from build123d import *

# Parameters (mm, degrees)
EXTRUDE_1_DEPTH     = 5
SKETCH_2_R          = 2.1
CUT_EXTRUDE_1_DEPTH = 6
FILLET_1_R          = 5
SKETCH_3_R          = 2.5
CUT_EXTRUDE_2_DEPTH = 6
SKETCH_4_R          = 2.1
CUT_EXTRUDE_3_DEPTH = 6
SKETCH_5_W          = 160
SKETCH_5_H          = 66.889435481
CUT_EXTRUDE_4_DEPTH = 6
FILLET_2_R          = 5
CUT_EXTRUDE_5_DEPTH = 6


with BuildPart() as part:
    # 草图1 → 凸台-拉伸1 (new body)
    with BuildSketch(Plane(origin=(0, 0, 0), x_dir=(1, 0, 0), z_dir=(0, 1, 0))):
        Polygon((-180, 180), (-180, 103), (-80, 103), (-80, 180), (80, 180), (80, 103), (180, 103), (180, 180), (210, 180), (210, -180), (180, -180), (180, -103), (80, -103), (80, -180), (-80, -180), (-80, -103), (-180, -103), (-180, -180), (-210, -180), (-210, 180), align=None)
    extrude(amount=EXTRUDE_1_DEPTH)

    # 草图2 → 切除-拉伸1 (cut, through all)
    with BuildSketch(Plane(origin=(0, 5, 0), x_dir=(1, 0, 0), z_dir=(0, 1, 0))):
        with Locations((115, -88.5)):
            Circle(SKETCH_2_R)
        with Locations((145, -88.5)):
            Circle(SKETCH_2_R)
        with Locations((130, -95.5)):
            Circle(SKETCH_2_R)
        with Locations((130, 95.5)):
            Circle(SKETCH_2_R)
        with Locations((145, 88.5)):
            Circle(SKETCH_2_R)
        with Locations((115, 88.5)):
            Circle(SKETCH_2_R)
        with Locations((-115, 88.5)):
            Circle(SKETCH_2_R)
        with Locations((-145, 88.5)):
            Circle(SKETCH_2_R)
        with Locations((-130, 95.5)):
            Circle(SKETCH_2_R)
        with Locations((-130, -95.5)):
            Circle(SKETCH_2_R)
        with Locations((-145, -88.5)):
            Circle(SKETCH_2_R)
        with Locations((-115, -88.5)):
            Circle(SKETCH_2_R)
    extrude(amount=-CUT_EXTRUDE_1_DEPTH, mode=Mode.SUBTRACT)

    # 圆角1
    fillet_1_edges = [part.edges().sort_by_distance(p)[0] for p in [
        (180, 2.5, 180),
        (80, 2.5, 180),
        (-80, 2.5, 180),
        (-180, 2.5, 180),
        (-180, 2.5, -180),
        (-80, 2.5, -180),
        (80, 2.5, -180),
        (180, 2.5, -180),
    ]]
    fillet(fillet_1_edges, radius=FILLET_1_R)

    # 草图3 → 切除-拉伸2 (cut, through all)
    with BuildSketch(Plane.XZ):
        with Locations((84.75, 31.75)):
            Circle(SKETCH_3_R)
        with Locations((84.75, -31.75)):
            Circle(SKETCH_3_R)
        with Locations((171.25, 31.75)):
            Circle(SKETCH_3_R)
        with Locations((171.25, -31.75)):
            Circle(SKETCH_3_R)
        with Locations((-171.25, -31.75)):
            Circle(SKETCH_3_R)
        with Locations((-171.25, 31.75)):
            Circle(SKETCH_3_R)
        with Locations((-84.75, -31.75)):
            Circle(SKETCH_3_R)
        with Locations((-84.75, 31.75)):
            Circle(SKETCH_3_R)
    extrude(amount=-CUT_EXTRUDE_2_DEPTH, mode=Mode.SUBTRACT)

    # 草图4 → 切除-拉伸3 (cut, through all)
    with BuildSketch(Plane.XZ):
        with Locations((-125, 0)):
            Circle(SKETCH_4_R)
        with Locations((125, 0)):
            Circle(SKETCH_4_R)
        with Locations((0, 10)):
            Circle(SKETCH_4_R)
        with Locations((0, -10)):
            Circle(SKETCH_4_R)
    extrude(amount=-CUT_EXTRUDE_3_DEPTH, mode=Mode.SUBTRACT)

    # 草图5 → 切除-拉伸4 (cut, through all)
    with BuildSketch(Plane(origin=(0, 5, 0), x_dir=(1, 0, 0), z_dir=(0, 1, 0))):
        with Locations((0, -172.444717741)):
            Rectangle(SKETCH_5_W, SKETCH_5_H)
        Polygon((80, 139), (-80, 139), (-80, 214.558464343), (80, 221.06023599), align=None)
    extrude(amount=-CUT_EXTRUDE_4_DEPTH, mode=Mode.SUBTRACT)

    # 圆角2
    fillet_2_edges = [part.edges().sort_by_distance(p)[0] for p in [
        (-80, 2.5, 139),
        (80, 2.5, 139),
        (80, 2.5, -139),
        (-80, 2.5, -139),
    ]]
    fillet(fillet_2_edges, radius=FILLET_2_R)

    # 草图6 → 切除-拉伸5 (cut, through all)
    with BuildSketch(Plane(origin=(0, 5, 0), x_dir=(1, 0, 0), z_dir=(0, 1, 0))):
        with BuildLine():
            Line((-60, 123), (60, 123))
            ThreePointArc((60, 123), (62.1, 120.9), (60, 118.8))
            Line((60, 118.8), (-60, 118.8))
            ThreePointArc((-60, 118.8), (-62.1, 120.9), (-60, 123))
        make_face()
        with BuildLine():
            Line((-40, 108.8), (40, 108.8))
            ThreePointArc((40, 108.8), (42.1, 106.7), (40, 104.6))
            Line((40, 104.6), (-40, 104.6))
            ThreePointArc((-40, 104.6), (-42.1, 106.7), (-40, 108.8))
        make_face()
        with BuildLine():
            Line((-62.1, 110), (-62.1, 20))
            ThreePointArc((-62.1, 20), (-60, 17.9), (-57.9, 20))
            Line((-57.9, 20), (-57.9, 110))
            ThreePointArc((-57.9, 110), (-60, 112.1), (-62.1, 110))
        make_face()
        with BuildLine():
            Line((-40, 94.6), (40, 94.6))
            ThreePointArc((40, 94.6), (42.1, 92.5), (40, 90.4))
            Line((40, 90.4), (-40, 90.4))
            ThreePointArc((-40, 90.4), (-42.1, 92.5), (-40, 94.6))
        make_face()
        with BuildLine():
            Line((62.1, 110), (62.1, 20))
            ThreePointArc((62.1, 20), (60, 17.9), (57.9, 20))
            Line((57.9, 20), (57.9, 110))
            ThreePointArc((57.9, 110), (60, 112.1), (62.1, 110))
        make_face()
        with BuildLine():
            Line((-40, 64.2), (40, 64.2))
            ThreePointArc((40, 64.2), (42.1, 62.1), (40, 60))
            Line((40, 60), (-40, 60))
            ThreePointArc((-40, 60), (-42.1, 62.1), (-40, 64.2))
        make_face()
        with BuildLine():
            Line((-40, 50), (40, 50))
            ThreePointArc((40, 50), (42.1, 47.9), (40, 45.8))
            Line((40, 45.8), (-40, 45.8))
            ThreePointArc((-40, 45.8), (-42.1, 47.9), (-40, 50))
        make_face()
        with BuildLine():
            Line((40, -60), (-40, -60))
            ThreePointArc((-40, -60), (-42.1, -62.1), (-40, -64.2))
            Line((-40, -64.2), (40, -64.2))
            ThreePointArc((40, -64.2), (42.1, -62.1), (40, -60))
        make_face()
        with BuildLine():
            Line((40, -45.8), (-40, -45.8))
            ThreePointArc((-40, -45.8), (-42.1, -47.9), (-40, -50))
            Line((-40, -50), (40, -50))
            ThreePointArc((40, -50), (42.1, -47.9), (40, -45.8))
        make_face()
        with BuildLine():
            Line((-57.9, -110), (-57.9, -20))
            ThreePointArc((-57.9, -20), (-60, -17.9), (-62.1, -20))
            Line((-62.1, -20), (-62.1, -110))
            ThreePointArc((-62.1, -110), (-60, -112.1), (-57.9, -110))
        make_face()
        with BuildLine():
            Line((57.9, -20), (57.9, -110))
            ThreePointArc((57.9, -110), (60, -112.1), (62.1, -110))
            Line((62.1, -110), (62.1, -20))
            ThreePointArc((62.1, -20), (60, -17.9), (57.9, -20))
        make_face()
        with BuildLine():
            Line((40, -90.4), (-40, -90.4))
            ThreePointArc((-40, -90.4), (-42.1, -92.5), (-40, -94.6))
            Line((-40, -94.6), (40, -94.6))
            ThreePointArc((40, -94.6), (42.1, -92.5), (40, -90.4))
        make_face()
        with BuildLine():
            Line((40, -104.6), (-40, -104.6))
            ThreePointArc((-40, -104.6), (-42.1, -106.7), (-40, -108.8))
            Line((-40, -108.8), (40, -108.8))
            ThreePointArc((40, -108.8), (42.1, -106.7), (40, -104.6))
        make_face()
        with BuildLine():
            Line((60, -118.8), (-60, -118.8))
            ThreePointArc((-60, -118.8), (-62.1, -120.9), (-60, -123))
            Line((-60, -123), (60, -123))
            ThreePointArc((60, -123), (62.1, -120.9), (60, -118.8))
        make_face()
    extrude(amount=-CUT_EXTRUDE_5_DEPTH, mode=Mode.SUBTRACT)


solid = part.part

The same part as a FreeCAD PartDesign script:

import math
import FreeCAD as App
import Part
import Sketcher
from FreeCAD import Vector


def edges_at(feature, points):
    """Names of the edges that pass closest to the given points."""
    edges = feature.Shape.Edges
    near = lambda p: min(range(len(edges)), key=lambda i: edges[i].distToShape(Part.Vertex(*p))[0])
    return sorted({f"Edge{near(p) + 1}" for p in points})


def add_polygon(sketch, points):
    """Adds a closed chain of lines whose ends are joined by coincident constraints."""
    first, n = sketch.GeometryCount, len(points)
    for a, b in zip(points, points[1:] + points[:1]):
        sketch.addGeometry(Part.LineSegment(App.Vector(*a, 0), App.Vector(*b, 0)), False)
    for i in range(n):
        sketch.addConstraint(Sketcher.Constraint("Coincident", first + i, 2, first + (i + 1) % n, 1))

doc = App.newDocument("Part")
body = doc.addObject("PartDesign::Body", "Body")

# Sketch on XZ plane
sketch1 = body.newObject("Sketcher::SketchObject", "Sketch")
sketch1.AttachmentSupport = (doc.getObject("XZ_Plane"), [""])
sketch1.MapMode = "FlatFace"
add_polygon(sketch1, [(-180, -103), (-180, -180), (-210, -180), (-210, 180), (-180, 180), (-180, 103), (-80, 103), (-80, 180), (80, 180), (80, 103), (180, 103), (180, 180), (210, 180), (210, -180), (180, -180), (180, -103), (80, -103), (80, -180), (-80, -180), (-80, -103)])  # lines 0-19
sketch1.addConstraint(Sketcher.Constraint("Vertical", 0))
sketch1.addConstraint(Sketcher.Constraint("Horizontal", 1))
sketch1.addConstraint(Sketcher.Constraint("Vertical", 2))
sketch1.addConstraint(Sketcher.Constraint("Horizontal", 3))
sketch1.addConstraint(Sketcher.Constraint("Vertical", 4))
sketch1.addConstraint(Sketcher.Constraint("Horizontal", 5))
sketch1.addConstraint(Sketcher.Constraint("Vertical", 6))
sketch1.addConstraint(Sketcher.Constraint("Horizontal", 7))
sketch1.addConstraint(Sketcher.Constraint("Vertical", 8))
sketch1.addConstraint(Sketcher.Constraint("Horizontal", 9))
sketch1.addConstraint(Sketcher.Constraint("Vertical", 10))
sketch1.addConstraint(Sketcher.Constraint("Horizontal", 11))
sketch1.addConstraint(Sketcher.Constraint("Vertical", 12))
sketch1.addConstraint(Sketcher.Constraint("Horizontal", 13))
sketch1.addConstraint(Sketcher.Constraint("Vertical", 14))
sketch1.addConstraint(Sketcher.Constraint("Horizontal", 15))
sketch1.addConstraint(Sketcher.Constraint("Vertical", 16))
sketch1.addConstraint(Sketcher.Constraint("Horizontal", 17))
sketch1.addConstraint(Sketcher.Constraint("Vertical", 18))
sketch1.addConstraint(Sketcher.Constraint("Horizontal", 19))
sketch1.addConstraint(Sketcher.Constraint("Symmetric", 0, 2, 10, 2, -1, 1))
sketch1.addConstraint(Sketcher.Constraint("Symmetric", 2, 2, 12, 2, -1, 1))
sketch1.addConstraint(Sketcher.Constraint("Symmetric", 4, 2, 14, 2, -1, 1))
sketch1.addConstraint(Sketcher.Constraint("Symmetric", 6, 2, 16, 2, -1, 1))
sketch1.addConstraint(Sketcher.Constraint("Symmetric", 8, 2, 18, 2, -1, 1))
sketch1.addConstraint(Sketcher.Constraint("Symmetric", 5, 2, 8, 2, -2))
sketch1.addConstraint(Sketcher.Constraint("Symmetric", 3, 2, 10, 2, -2))
sketch1.addConstraint(Sketcher.Constraint("Horizontal", 3, 2, 6, 2))
sketch1.addConstraint(Sketcher.Constraint("DistanceX", 1, 2, 1, 1, 30.0))
sketch1.addConstraint(Sketcher.Constraint("DistanceX", 5, 1, 5, 2, 100.0))
sketch1.addConstraint(Sketcher.Constraint("DistanceX", 7, 1, 7, 2, 160.0))
sketch1.addConstraint(Sketcher.Constraint("DistanceY", 0, 2, 0, 1, 77.0))
sketch1.addConstraint(Sketcher.Constraint("DistanceY", 2, 1, 2, 2, 360.0))
pad1 = body.newObject("PartDesign::Pad", "Pad")
pad1.Profile = sketch1
pad1.Length = 5
pad1.Reversed = True

# Sketch on XZ plane
sketch2 = body.newObject("Sketcher::SketchObject", "Sketch001")
sketch2.AttachmentSupport = (doc.getObject("XZ_Plane"), [""])
sketch2.MapMode = "FlatFace"
sketch2.AttachmentOffset = App.Placement(Vector(0, 0, -5), App.Rotation())
sketch2.addGeometry(Part.Circle(Vector(115, 88.5, 0), Vector(0, 0, 1), 2.1), False)
sketch2.addGeometry(Part.Circle(Vector(145, 88.5, 0), Vector(0, 0, 1), 2.1), False)
sketch2.addGeometry(Part.Circle(Vector(130, 95.5, 0), Vector(0, 0, 1), 2.1), False)
sketch2.addGeometry(Part.Circle(Vector(130, -95.5, 0), Vector(0, 0, 1), 2.1), False)
sketch2.addGeometry(Part.Circle(Vector(145, -88.5, 0), Vector(0, 0, 1), 2.1), False)
sketch2.addGeometry(Part.Circle(Vector(115, -88.5, 0), Vector(0, 0, 1), 2.1), False)
sketch2.addGeometry(Part.Circle(Vector(-115, -88.5, 0), Vector(0, 0, 1), 2.1), False)
sketch2.addGeometry(Part.Circle(Vector(-145, -88.5, 0), Vector(0, 0, 1), 2.1), False)
sketch2.addGeometry(Part.Circle(Vector(-130, -95.5, 0), Vector(0, 0, 1), 2.1), False)
sketch2.addGeometry(Part.Circle(Vector(-130, 95.5, 0), Vector(0, 0, 1), 2.1), False)
sketch2.addGeometry(Part.Circle(Vector(-145, 88.5, 0), Vector(0, 0, 1), 2.1), False)
sketch2.addGeometry(Part.Circle(Vector(-115, 88.5, 0), Vector(0, 0, 1), 2.1), False)
sketch2.addConstraint(Sketcher.Constraint("Equal", 0, 1))
sketch2.addConstraint(Sketcher.Constraint("Equal", 1, 2))
sketch2.addConstraint(Sketcher.Constraint("Equal", 2, 3))
sketch2.addConstraint(Sketcher.Constraint("Equal", 3, 4))
sketch2.addConstraint(Sketcher.Constraint("Equal", 4, 5))
sketch2.addConstraint(Sketcher.Constraint("Equal", 5, 6))
sketch2.addConstraint(Sketcher.Constraint("Equal", 6, 7))
sketch2.addConstraint(Sketcher.Constraint("Equal", 7, 8))
sketch2.addConstraint(Sketcher.Constraint("Equal", 8, 9))
sketch2.addConstraint(Sketcher.Constraint("Equal", 9, 10))
sketch2.addConstraint(Sketcher.Constraint("Equal", 10, 11))
sketch2.addConstraint(Sketcher.Constraint("Symmetric", 0, 3, 6, 3, -1, 1))
sketch2.addConstraint(Sketcher.Constraint("Symmetric", 1, 3, 7, 3, -1, 1))
sketch2.addConstraint(Sketcher.Constraint("Symmetric", 2, 3, 8, 3, -1, 1))
sketch2.addConstraint(Sketcher.Constraint("Symmetric", 3, 3, 9, 3, -1, 1))
sketch2.addConstraint(Sketcher.Constraint("Symmetric", 4, 3, 10, 3, -1, 1))
sketch2.addConstraint(Sketcher.Constraint("Symmetric", 5, 3, 11, 3, -1, 1))
sketch2.addConstraint(Sketcher.Constraint("Symmetric", 5, 3, 6, 3, -2))
sketch2.addConstraint(Sketcher.Constraint("Symmetric", 4, 3, 7, 3, -2))
sketch2.addConstraint(Sketcher.Constraint("Symmetric", 3, 3, 8, 3, -2))
sketch2.addConstraint(Sketcher.Constraint("Horizontal", 0, 3, 1, 3))
sketch2.addConstraint(Sketcher.Constraint("Diameter", 0, 4.2))
sketch2.addConstraint(Sketcher.Constraint("DistanceX", -1, 1, 0, 3, 115.0))
sketch2.addConstraint(Sketcher.Constraint("DistanceX", -1, 1, 1, 3, 145.0))
sketch2.addConstraint(Sketcher.Constraint("DistanceX", -1, 1, 2, 3, 130.0))
sketch2.addConstraint(Sketcher.Constraint("DistanceY", 0, 3, 2, 3, 7.0))
sketch2.addConstraint(Sketcher.Constraint("DistanceY", 3, 3, 0, 3, 184.0))
pocket1 = body.newObject("PartDesign::Pocket", "Pocket")
pocket1.Profile = sketch2
pocket1.Type = "ThroughAll"
pocket1.Reversed = True
doc.recompute()

fillet = body.newObject("PartDesign::Fillet", "Fillet")
fillet.Base = (pocket1, edges_at(pocket1, [
    (180, 2.5, 180),
    (80, 2.5, 180),
    (-80, 2.5, 180),
    (-180, 2.5, 180),
    (-180, 2.5, -180),
    (-80, 2.5, -180),
    (80, 2.5, -180),
    (180, 2.5, -180),
]))
fillet.Radius = 5

# Sketch on XZ plane
sketch3 = body.newObject("Sketcher::SketchObject", "Sketch002")
sketch3.AttachmentSupport = (doc.getObject("XZ_Plane"), [""])
sketch3.MapMode = "FlatFace"
sketch3.addGeometry(Part.Circle(Vector(84.8, 31.8, 0), Vector(0, 0, 1), 2.5), False)
sketch3.addGeometry(Part.Circle(Vector(84.8, -31.8, 0), Vector(0, 0, 1), 2.5), False)
sketch3.addGeometry(Part.Circle(Vector(171.2, 31.8, 0), Vector(0, 0, 1), 2.5), False)
sketch3.addGeometry(Part.Circle(Vector(171.2, -31.8, 0), Vector(0, 0, 1), 2.5), False)
sketch3.addGeometry(Part.Circle(Vector(-171.2, -31.8, 0), Vector(0, 0, 1), 2.5), False)
sketch3.addGeometry(Part.Circle(Vector(-171.2, 31.8, 0), Vector(0, 0, 1), 2.5), False)
sketch3.addGeometry(Part.Circle(Vector(-84.8, -31.8, 0), Vector(0, 0, 1), 2.5), False)
sketch3.addGeometry(Part.Circle(Vector(-84.8, 31.8, 0), Vector(0, 0, 1), 2.5), False)
sketch3.addConstraint(Sketcher.Constraint("Equal", 0, 1))
sketch3.addConstraint(Sketcher.Constraint("Equal", 1, 2))
sketch3.addConstraint(Sketcher.Constraint("Equal", 2, 3))
sketch3.addConstraint(Sketcher.Constraint("Equal", 3, 4))
sketch3.addConstraint(Sketcher.Constraint("Equal", 4, 5))
sketch3.addConstraint(Sketcher.Constraint("Equal", 5, 6))
sketch3.addConstraint(Sketcher.Constraint("Equal", 6, 7))
sketch3.addConstraint(Sketcher.Constraint("Symmetric", 2, 3, 4, 3, -1, 1))
sketch3.addConstraint(Sketcher.Constraint("Symmetric", 3, 3, 5, 3, -1, 1))
sketch3.addConstraint(Sketcher.Constraint("Symmetric", 0, 3, 6, 3, -1, 1))
sketch3.addConstraint(Sketcher.Constraint("Symmetric", 1, 3, 7, 3, -1, 1))
sketch3.addConstraint(Sketcher.Constraint("Symmetric", 3, 3, 4, 3, -2))
sketch3.addConstraint(Sketcher.Constraint("Symmetric", 1, 3, 6, 3, -2))
sketch3.addConstraint(Sketcher.Constraint("Horizontal", 0, 3, 2, 3))
sketch3.addConstraint(Sketcher.Constraint("Diameter", 0, 5.0))
sketch3.addConstraint(Sketcher.Constraint("DistanceX", 4, 3, 1, 3, 256.0))
sketch3.addConstraint(Sketcher.Constraint("DistanceY", 1, 3, 0, 3, 63.5))
sketch3.addConstraint(Sketcher.Constraint("DistanceX", 0, 3, 2, 3, 86.5))
pocket2 = body.newObject("PartDesign::Pocket", "Pocket001")
pocket2.Profile = sketch3
pocket2.Type = "ThroughAll"

# Sketch on XZ plane
sketch4 = body.newObject("Sketcher::SketchObject", "Sketch003")
sketch4.AttachmentSupport = (doc.getObject("XZ_Plane"), [""])
sketch4.MapMode = "FlatFace"
sketch4.addGeometry(Part.Circle(Vector(-125, 0, 0), Vector(0, 0, 1), 2.1), False)
sketch4.addGeometry(Part.Circle(Vector(125, 0, 0), Vector(0, 0, 1), 2.1), False)
sketch4.addGeometry(Part.Circle(Vector(0, 10, 0), Vector(0, 0, 1), 2.1), False)
sketch4.addGeometry(Part.Circle(Vector(0, -10, 0), Vector(0, 0, 1), 2.1), False)
sketch4.addConstraint(Sketcher.Constraint("Equal", 0, 1))
sketch4.addConstraint(Sketcher.Constraint("Equal", 1, 2))
sketch4.addConstraint(Sketcher.Constraint("Equal", 2, 3))
sketch4.addConstraint(Sketcher.Constraint("Symmetric", 0, 3, 1, 3, -1, 1))
sketch4.addConstraint(Sketcher.Constraint("Symmetric", 2, 3, 3, 3, -1, 1))
sketch4.addConstraint(Sketcher.Constraint("PointOnObject", 0, 3, -1))
sketch4.addConstraint(Sketcher.Constraint("PointOnObject", 2, 3, -2))
sketch4.addConstraint(Sketcher.Constraint("Diameter", 0, 4.2))
sketch4.addConstraint(Sketcher.Constraint("DistanceX", 0, 3, -1, 1, 125.0))
sketch4.addConstraint(Sketcher.Constraint("DistanceY", -1, 1, 2, 3, 10.0))
pocket3 = body.newObject("PartDesign::Pocket", "Pocket002")
pocket3.Profile = sketch4
pocket3.Type = "ThroughAll"

# Sketch on XZ plane
sketch5 = body.newObject("Sketcher::SketchObject", "Sketch004")
sketch5.AttachmentSupport = (doc.getObject("XZ_Plane"), [""])
sketch5.MapMode = "FlatFace"
sketch5.AttachmentOffset = App.Placement(Vector(0, 0, -5), App.Rotation())
add_polygon(sketch5, [(-80, 139), (-80, 206), (80, 206), (80, 139)])  # lines 0-3
add_polygon(sketch5, [(-80, -139), (80, -139), (80, -221), (-80, -215)])  # lines 4-7
sketch5.addConstraint(Sketcher.Constraint("Vertical", 0))
sketch5.addConstraint(Sketcher.Constraint("Horizontal", 1))
sketch5.addConstraint(Sketcher.Constraint("Vertical", 2))
sketch5.addConstraint(Sketcher.Constraint("Horizontal", 3))
sketch5.addConstraint(Sketcher.Constraint("Horizontal", 4))
sketch5.addConstraint(Sketcher.Constraint("Vertical", 5))
sketch5.addConstraint(Sketcher.Constraint("Vertical", 7))
sketch5.addConstraint(Sketcher.Constraint("Symmetric", 3, 2, 4, 2, -1, 1))
sketch5.addConstraint(Sketcher.Constraint("Vertical", 2, 2, 4, 2))
sketch5.addConstraint(Sketcher.Constraint("Vertical", 3, 2, 6, 2))
sketch5.addConstraint(Sketcher.Constraint("DistanceX", 1, 1, 1, 2, 160.0))
sketch5.addConstraint(Sketcher.Constraint("DistanceY", -1, 1, 2, 2, 139.0))
sketch5.addConstraint(Sketcher.Constraint("DistanceY", 6, 2, 0, 2, 420.4479))
sketch5.addConstraint(Sketcher.Constraint("Distance", 6, 160.132049))
sketch5.addConstraint(Sketcher.Constraint("DistanceY", 0, 1, 0, 2, 66.889435))
pocket4 = body.newObject("PartDesign::Pocket", "Pocket003")
pocket4.Profile = sketch5
pocket4.Type = "ThroughAll"
pocket4.Reversed = True
doc.recompute()

fillet2 = body.newObject("PartDesign::Fillet", "Fillet001")
fillet2.Base = (pocket4, edges_at(pocket4, [
    (-80, 2.5, 139),
    (80, 2.5, 139),
    (80, 2.5, -139),
    (-80, 2.5, -139),
]))
fillet2.Radius = 5

# Sketch on XZ plane
sketch6 = body.newObject("Sketcher::SketchObject", "Sketch005")
sketch6.AttachmentSupport = (doc.getObject("XZ_Plane"), [""])
sketch6.MapMode = "FlatFace"
sketch6.AttachmentOffset = App.Placement(Vector(0, 0, -5), App.Rotation())
sketch6.addGeometry(Part.LineSegment(Vector(60, -123, 0), Vector(-60, -123, 0)), False)
sketch6.addGeometry(Part.ArcOfCircle(Part.Circle(Vector(-60, -120.9, 0), Vector(0, 0, 1), 2.1), math.radians(90), math.radians(270)), False)
sketch6.addGeometry(Part.LineSegment(Vector(-60, -118.8, 0), Vector(60, -118.8, 0)), False)
sketch6.addGeometry(Part.ArcOfCircle(Part.Circle(Vector(60, -120.9, 0), Vector(0, 0, 1), 2.1), math.radians(-90), math.radians(90)), False)
sketch6.addGeometry(Part.LineSegment(Vector(40, -108.8, 0), Vector(-40, -108.8, 0)), False)
sketch6.addGeometry(Part.ArcOfCircle(Part.Circle(Vector(-40, -106.7, 0), Vector(0, 0, 1), 2.1), math.radians(90), math.radians(270)), False)
sketch6.addGeometry(Part.LineSegment(Vector(-40, -104.6, 0), Vector(40, -104.6, 0)), False)
sketch6.addGeometry(Part.ArcOfCircle(Part.Circle(Vector(40, -106.7, 0), Vector(0, 0, 1), 2.1), math.radians(-90), math.radians(90)), False)
sketch6.addGeometry(Part.LineSegment(Vector(-62.1, -110, 0), Vector(-62.1, -20, 0)), False)
sketch6.addGeometry(Part.ArcOfCircle(Part.Circle(Vector(-60, -20, 0), Vector(0, 0, 1), 2.1), math.radians(0), math.radians(180)), False)
sketch6.addGeometry(Part.LineSegment(Vector(-57.9, -20, 0), Vector(-57.9, -110, 0)), False)
sketch6.addGeometry(Part.ArcOfCircle(Part.Circle(Vector(-60, -110, 0), Vector(0, 0, 1), 2.1), math.radians(180), math.radians(360)), False)
sketch6.addGeometry(Part.LineSegment(Vector(40, -94.6, 0), Vector(-40, -94.6, 0)), False)
sketch6.addGeometry(Part.ArcOfCircle(Part.Circle(Vector(-40, -92.5, 0), Vector(0, 0, 1), 2.1), math.radians(90), math.radians(270)), False)
sketch6.addGeometry(Part.LineSegment(Vector(-40, -90.4, 0), Vector(40, -90.4, 0)), False)
sketch6.addGeometry(Part.ArcOfCircle(Part.Circle(Vector(40, -92.5, 0), Vector(0, 0, 1), 2.1), math.radians(-90), math.radians(90)), False)
sketch6.addGeometry(Part.LineSegment(Vector(62.1, -20, 0), Vector(62.1, -110, 0)), False)
sketch6.addGeometry(Part.ArcOfCircle(Part.Circle(Vector(60, -110, 0), Vector(0, 0, 1), 2.1), math.radians(180), math.radians(360)), False)
sketch6.addGeometry(Part.LineSegment(Vector(57.9, -110, 0), Vector(57.9, -20, 0)), False)
sketch6.addGeometry(Part.ArcOfCircle(Part.Circle(Vector(60, -20, 0), Vector(0, 0, 1), 2.1), math.radians(0), math.radians(180)), False)
sketch6.addGeometry(Part.LineSegment(Vector(40, -64.2, 0), Vector(-40, -64.2, 0)), False)
sketch6.addGeometry(Part.ArcOfCircle(Part.Circle(Vector(-40, -62.1, 0), Vector(0, 0, 1), 2.1), math.radians(90), math.radians(270)), False)
sketch6.addGeometry(Part.LineSegment(Vector(-40, -60, 0), Vector(40, -60, 0)), False)
sketch6.addGeometry(Part.ArcOfCircle(Part.Circle(Vector(40, -62.1, 0), Vector(0, 0, 1), 2.1), math.radians(-90), math.radians(90)), False)
sketch6.addGeometry(Part.LineSegment(Vector(40, -50, 0), Vector(-40, -50, 0)), False)
sketch6.addGeometry(Part.ArcOfCircle(Part.Circle(Vector(-40, -47.9, 0), Vector(0, 0, 1), 2.1), math.radians(90), math.radians(270)), False)
sketch6.addGeometry(Part.LineSegment(Vector(-40, -45.8, 0), Vector(40, -45.8, 0)), False)
sketch6.addGeometry(Part.ArcOfCircle(Part.Circle(Vector(40, -47.9, 0), Vector(0, 0, 1), 2.1), math.radians(-90), math.radians(90)), False)
sketch6.addGeometry(Part.LineSegment(Vector(40, 60, 0), Vector(-40, 60, 0)), False)
sketch6.addGeometry(Part.ArcOfCircle(Part.Circle(Vector(-40, 62.1, 0), Vector(0, 0, 1), 2.1), math.radians(90), math.radians(270)), False)
sketch6.addGeometry(Part.LineSegment(Vector(-40, 64.2, 0), Vector(40, 64.2, 0)), False)
sketch6.addGeometry(Part.ArcOfCircle(Part.Circle(Vector(40, 62.1, 0), Vector(0, 0, 1), 2.1), math.radians(-90), math.radians(90)), False)
sketch6.addGeometry(Part.LineSegment(Vector(40, 45.8, 0), Vector(-40, 45.8, 0)), False)
sketch6.addGeometry(Part.ArcOfCircle(Part.Circle(Vector(-40, 47.9, 0), Vector(0, 0, 1), 2.1), math.radians(90), math.radians(270)), False)
sketch6.addGeometry(Part.LineSegment(Vector(-40, 50, 0), Vector(40, 50, 0)), False)
sketch6.addGeometry(Part.ArcOfCircle(Part.Circle(Vector(40, 47.9, 0), Vector(0, 0, 1), 2.1), math.radians(-90), math.radians(90)), False)
sketch6.addGeometry(Part.LineSegment(Vector(-57.9, 110, 0), Vector(-57.9, 20, 0)), False)
sketch6.addGeometry(Part.ArcOfCircle(Part.Circle(Vector(-60, 20, 0), Vector(0, 0, 1), 2.1), math.radians(180), math.radians(360)), False)
sketch6.addGeometry(Part.LineSegment(Vector(-62.1, 20, 0), Vector(-62.1, 110, 0)), False)
sketch6.addGeometry(Part.ArcOfCircle(Part.Circle(Vector(-60, 110, 0), Vector(0, 0, 1), 2.1), math.radians(0), math.radians(180)), False)
sketch6.addGeometry(Part.LineSegment(Vector(57.9, 20, 0), Vector(57.9, 110, 0)), False)
sketch6.addGeometry(Part.ArcOfCircle(Part.Circle(Vector(60, 110, 0), Vector(0, 0, 1), 2.1), math.radians(0), math.radians(180)), False)
sketch6.addGeometry(Part.LineSegment(Vector(62.1, 110, 0), Vector(62.1, 20, 0)), False)
sketch6.addGeometry(Part.ArcOfCircle(Part.Circle(Vector(60, 20, 0), Vector(0, 0, 1), 2.1), math.radians(180), math.radians(360)), False)
sketch6.addGeometry(Part.LineSegment(Vector(40, 90.4, 0), Vector(-40, 90.4, 0)), False)
sketch6.addGeometry(Part.ArcOfCircle(Part.Circle(Vector(-40, 92.5, 0), Vector(0, 0, 1), 2.1), math.radians(90), math.radians(270)), False)
sketch6.addGeometry(Part.LineSegment(Vector(-40, 94.6, 0), Vector(40, 94.6, 0)), False)
sketch6.addGeometry(Part.ArcOfCircle(Part.Circle(Vector(40, 92.5, 0), Vector(0, 0, 1), 2.1), math.radians(-90), math.radians(90)), False)
sketch6.addGeometry(Part.LineSegment(Vector(40, 104.6, 0), Vector(-40, 104.6, 0)), False)
sketch6.addGeometry(Part.ArcOfCircle(Part.Circle(Vector(-40, 106.7, 0), Vector(0, 0, 1), 2.1), math.radians(90), math.radians(270)), False)
sketch6.addGeometry(Part.LineSegment(Vector(-40, 108.8, 0), Vector(40, 108.8, 0)), False)
sketch6.addGeometry(Part.ArcOfCircle(Part.Circle(Vector(40, 106.7, 0), Vector(0, 0, 1), 2.1), math.radians(-90), math.radians(90)), False)
sketch6.addGeometry(Part.LineSegment(Vector(60, 118.8, 0), Vector(-60, 118.8, 0)), False)
sketch6.addGeometry(Part.ArcOfCircle(Part.Circle(Vector(-60, 120.9, 0), Vector(0, 0, 1), 2.1), math.radians(90), math.radians(270)), False)
sketch6.addGeometry(Part.LineSegment(Vector(-60, 123, 0), Vector(60, 123, 0)), False)
sketch6.addGeometry(Part.ArcOfCircle(Part.Circle(Vector(60, 120.9, 0), Vector(0, 0, 1), 2.1), math.radians(-90), math.radians(90)), False)
sketch6.addConstraint(Sketcher.Constraint("Tangent", 0, 2, 1, 2))
sketch6.addConstraint(Sketcher.Constraint("Tangent", 1, 1, 2, 1))
sketch6.addConstraint(Sketcher.Constraint("Tangent", 2, 2, 3, 2))
sketch6.addConstraint(Sketcher.Constraint("Tangent", 3, 1, 0, 1))
sketch6.addConstraint(Sketcher.Constraint("Tangent", 4, 2, 5, 2))
sketch6.addConstraint(Sketcher.Constraint("Tangent", 5, 1, 6, 1))
sketch6.addConstraint(Sketcher.Constraint("Tangent", 6, 2, 7, 2))
sketch6.addConstraint(Sketcher.Constraint("Tangent", 7, 1, 4, 1))
sketch6.addConstraint(Sketcher.Constraint("Tangent", 8, 2, 9, 2))
sketch6.addConstraint(Sketcher.Constraint("Tangent", 9, 1, 10, 1))
sketch6.addConstraint(Sketcher.Constraint("Tangent", 10, 2, 11, 2))
sketch6.addConstraint(Sketcher.Constraint("Tangent", 11, 1, 8, 1))
sketch6.addConstraint(Sketcher.Constraint("Tangent", 12, 2, 13, 2))
sketch6.addConstraint(Sketcher.Constraint("Tangent", 13, 1, 14, 1))
sketch6.addConstraint(Sketcher.Constraint("Tangent", 14, 2, 15, 2))
sketch6.addConstraint(Sketcher.Constraint("Tangent", 15, 1, 12, 1))
sketch6.addConstraint(Sketcher.Constraint("Tangent", 16, 2, 17, 2))
sketch6.addConstraint(Sketcher.Constraint("Tangent", 17, 1, 18, 1))
sketch6.addConstraint(Sketcher.Constraint("Tangent", 18, 2, 19, 2))
sketch6.addConstraint(Sketcher.Constraint("Tangent", 19, 1, 16, 1))
sketch6.addConstraint(Sketcher.Constraint("Tangent", 20, 2, 21, 2))
sketch6.addConstraint(Sketcher.Constraint("Tangent", 21, 1, 22, 1))
sketch6.addConstraint(Sketcher.Constraint("Tangent", 22, 2, 23, 2))
sketch6.addConstraint(Sketcher.Constraint("Tangent", 23, 1, 20, 1))
sketch6.addConstraint(Sketcher.Constraint("Tangent", 24, 2, 25, 2))
sketch6.addConstraint(Sketcher.Constraint("Tangent", 25, 1, 26, 1))
sketch6.addConstraint(Sketcher.Constraint("Tangent", 26, 2, 27, 2))
sketch6.addConstraint(Sketcher.Constraint("Tangent", 27, 1, 24, 1))
sketch6.addConstraint(Sketcher.Constraint("Tangent", 28, 2, 29, 2))
sketch6.addConstraint(Sketcher.Constraint("Tangent", 29, 1, 30, 1))
sketch6.addConstraint(Sketcher.Constraint("Tangent", 30, 2, 31, 2))
sketch6.addConstraint(Sketcher.Constraint("Tangent", 31, 1, 28, 1))
sketch6.addConstraint(Sketcher.Constraint("Tangent", 32, 2, 33, 2))
sketch6.addConstraint(Sketcher.Constraint("Tangent", 33, 1, 34, 1))
sketch6.addConstraint(Sketcher.Constraint("Tangent", 34, 2, 35, 2))
sketch6.addConstraint(Sketcher.Constraint("Tangent", 35, 1, 32, 1))
sketch6.addConstraint(Sketcher.Constraint("Tangent", 36, 2, 37, 2))
sketch6.addConstraint(Sketcher.Constraint("Tangent", 37, 1, 38, 1))
sketch6.addConstraint(Sketcher.Constraint("Tangent", 38, 2, 39, 2))
sketch6.addConstraint(Sketcher.Constraint("Tangent", 39, 1, 36, 1))
sketch6.addConstraint(Sketcher.Constraint("Tangent", 40, 2, 41, 2))
sketch6.addConstraint(Sketcher.Constraint("Tangent", 41, 1, 42, 1))
sketch6.addConstraint(Sketcher.Constraint("Tangent", 42, 2, 43, 2))
sketch6.addConstraint(Sketcher.Constraint("Tangent", 43, 1, 40, 1))
sketch6.addConstraint(Sketcher.Constraint("Tangent", 44, 2, 45, 2))
sketch6.addConstraint(Sketcher.Constraint("Tangent", 45, 1, 46, 1))
sketch6.addConstraint(Sketcher.Constraint("Tangent", 46, 2, 47, 2))
sketch6.addConstraint(Sketcher.Constraint("Tangent", 47, 1, 44, 1))
sketch6.addConstraint(Sketcher.Constraint("Tangent", 48, 2, 49, 2))
sketch6.addConstraint(Sketcher.Constraint("Tangent", 49, 1, 50, 1))
sketch6.addConstraint(Sketcher.Constraint("Tangent", 50, 2, 51, 2))
sketch6.addConstraint(Sketcher.Constraint("Tangent", 51, 1, 48, 1))
sketch6.addConstraint(Sketcher.Constraint("Tangent", 52, 2, 53, 2))
sketch6.addConstraint(Sketcher.Constraint("Tangent", 53, 1, 54, 1))
sketch6.addConstraint(Sketcher.Constraint("Tangent", 54, 2, 55, 2))
sketch6.addConstraint(Sketcher.Constraint("Tangent", 55, 1, 52, 1))
sketch6.addConstraint(Sketcher.Constraint("Horizontal", 0))
sketch6.addConstraint(Sketcher.Constraint("Horizontal", 2))
sketch6.addConstraint(Sketcher.Constraint("Horizontal", 4))
sketch6.addConstraint(Sketcher.Constraint("Horizontal", 6))
sketch6.addConstraint(Sketcher.Constraint("Vertical", 8))
sketch6.addConstraint(Sketcher.Constraint("Vertical", 10))
sketch6.addConstraint(Sketcher.Constraint("Horizontal", 12))
sketch6.addConstraint(Sketcher.Constraint("Horizontal", 14))
sketch6.addConstraint(Sketcher.Constraint("Vertical", 16))
sketch6.addConstraint(Sketcher.Constraint("Vertical", 18))
sketch6.addConstraint(Sketcher.Constraint("Horizontal", 20))
sketch6.addConstraint(Sketcher.Constraint("Horizontal", 22))
sketch6.addConstraint(Sketcher.Constraint("Horizontal", 24))
sketch6.addConstraint(Sketcher.Constraint("Horizontal", 26))
sketch6.addConstraint(Sketcher.Constraint("Horizontal", 28))
sketch6.addConstraint(Sketcher.Constraint("Horizontal", 30))
sketch6.addConstraint(Sketcher.Constraint("Horizontal", 32))
sketch6.addConstraint(Sketcher.Constraint("Horizontal", 34))
sketch6.addConstraint(Sketcher.Constraint("Vertical", 36))
sketch6.addConstraint(Sketcher.Constraint("Vertical", 38))
sketch6.addConstraint(Sketcher.Constraint("Vertical", 40))
sketch6.addConstraint(Sketcher.Constraint("Vertical", 42))
sketch6.addConstraint(Sketcher.Constraint("Horizontal", 44))
sketch6.addConstraint(Sketcher.Constraint("Horizontal", 46))
sketch6.addConstraint(Sketcher.Constraint("Horizontal", 48))
sketch6.addConstraint(Sketcher.Constraint("Horizontal", 50))
sketch6.addConstraint(Sketcher.Constraint("Horizontal", 52))
sketch6.addConstraint(Sketcher.Constraint("Horizontal", 54))
sketch6.addConstraint(Sketcher.Constraint("Equal", 3, 5))
sketch6.addConstraint(Sketcher.Constraint("Equal", 7, 9))
sketch6.addConstraint(Sketcher.Constraint("Equal", 11, 13))
sketch6.addConstraint(Sketcher.Constraint("Equal", 15, 17))
sketch6.addConstraint(Sketcher.Constraint("Equal", 19, 21))
sketch6.addConstraint(Sketcher.Constraint("Equal", 23, 25))
sketch6.addConstraint(Sketcher.Constraint("Equal", 27, 29))
sketch6.addConstraint(Sketcher.Constraint("Equal", 31, 33))
sketch6.addConstraint(Sketcher.Constraint("Equal", 35, 37))
sketch6.addConstraint(Sketcher.Constraint("Equal", 39, 41))
sketch6.addConstraint(Sketcher.Constraint("Equal", 43, 45))
sketch6.addConstraint(Sketcher.Constraint("Equal", 47, 49))
sketch6.addConstraint(Sketcher.Constraint("Equal", 51, 53))
sketch6.addConstraint(Sketcher.Constraint("Symmetric", 23, 3, 29, 3, -1, 1))
sketch6.addConstraint(Sketcher.Constraint("Symmetric", 27, 3, 33, 3, -1, 1))
sketch6.addConstraint(Sketcher.Constraint("Symmetric", 19, 3, 37, 3, -1, 1))
sketch6.addConstraint(Sketcher.Constraint("Symmetric", 11, 3, 41, 3, -1, 1))
sketch6.addConstraint(Sketcher.Constraint("Symmetric", 15, 3, 45, 3, -1, 1))
sketch6.addConstraint(Sketcher.Constraint("Symmetric", 7, 3, 49, 3, -1, 1))
sketch6.addConstraint(Sketcher.Constraint("Symmetric", 3, 3, 53, 3, -1, 1))
sketch6.addConstraint(Sketcher.Constraint("Symmetric", 11, 3, 17, 3, -2))
sketch6.addConstraint(Sketcher.Constraint("Horizontal", 9, 3, 19, 3))
sketch6.addConstraint(Sketcher.Constraint("Horizontal", 39, 3, 41, 3))
sketch6.addConstraint(Sketcher.Constraint("Horizontal", 37, 3, 43, 3))
sketch6.addConstraint(Sketcher.Constraint("Vertical", 1, 3, 9, 3))
sketch6.addConstraint(Sketcher.Constraint("Vertical", 5, 3, 13, 3))
sketch6.addConstraint(Sketcher.Constraint("Vertical", 7, 3, 15, 3))
sketch6.addConstraint(Sketcher.Constraint("Vertical", 3, 3, 17, 3))
sketch6.addConstraint(Sketcher.Constraint("Vertical", 13, 3, 21, 3))
sketch6.addConstraint(Sketcher.Constraint("Vertical", 15, 3, 23, 3))
sketch6.addConstraint(Sketcher.Constraint("Vertical", 21, 3, 25, 3))
sketch6.addConstraint(Sketcher.Constraint("Vertical", 23, 3, 27, 3))
sketch6.addConstraint(Sketcher.Constraint("Vertical", 25, 3, 29, 3))
sketch6.addConstraint(Sketcher.Constraint("Vertical", 27, 3, 31, 3))
sketch6.addConstraint(Sketcher.Constraint("Vertical", 31, 3, 35, 3))
sketch6.addConstraint(Sketcher.Constraint("Vertical", 35, 3, 47, 3))
sketch6.addConstraint(Sketcher.Constraint("Vertical", 47, 3, 51, 3))
sketch6.addConstraint(Sketcher.Constraint("Vertical", 43, 3, 55, 3))
sketch6.addConstraint(Sketcher.Constraint("Radius", 1, 2.1))
sketch6.addConstraint(Sketcher.Constraint("DistanceX", 0, 2, 0, 1, 120.0))
sketch6.addConstraint(Sketcher.Constraint("DistanceX", 4, 2, 4, 1, 80.0))
sketch6.addConstraint(Sketcher.Constraint("DistanceY", 8, 1, 8, 2, 90.0))
sketch6.addConstraint(Sketcher.Constraint("DistanceY", 9, 3, -1, 1, 20.0))
sketch6.addConstraint(Sketcher.Constraint("DistanceY", 0, 2, -1, 1, 123.0))
sketch6.addConstraint(Sketcher.Constraint("DistanceY", 21, 1, -1, 1, 60.0))
sketch6.addConstraint(Sketcher.Constraint("DistanceY", 24, 2, -1, 1, 50.0))
sketch6.addConstraint(Sketcher.Constraint("DistanceY", 5, 3, -1, 1, 106.7))
sketch6.addConstraint(Sketcher.Constraint("DistanceY", 13, 3, -1, 1, 92.5))
pocket5 = body.newObject("PartDesign::Pocket", "Pocket004")
pocket5.Profile = sketch6
pocket5.Type = "ThroughAll"
pocket5.Reversed = True

doc.recompute()
